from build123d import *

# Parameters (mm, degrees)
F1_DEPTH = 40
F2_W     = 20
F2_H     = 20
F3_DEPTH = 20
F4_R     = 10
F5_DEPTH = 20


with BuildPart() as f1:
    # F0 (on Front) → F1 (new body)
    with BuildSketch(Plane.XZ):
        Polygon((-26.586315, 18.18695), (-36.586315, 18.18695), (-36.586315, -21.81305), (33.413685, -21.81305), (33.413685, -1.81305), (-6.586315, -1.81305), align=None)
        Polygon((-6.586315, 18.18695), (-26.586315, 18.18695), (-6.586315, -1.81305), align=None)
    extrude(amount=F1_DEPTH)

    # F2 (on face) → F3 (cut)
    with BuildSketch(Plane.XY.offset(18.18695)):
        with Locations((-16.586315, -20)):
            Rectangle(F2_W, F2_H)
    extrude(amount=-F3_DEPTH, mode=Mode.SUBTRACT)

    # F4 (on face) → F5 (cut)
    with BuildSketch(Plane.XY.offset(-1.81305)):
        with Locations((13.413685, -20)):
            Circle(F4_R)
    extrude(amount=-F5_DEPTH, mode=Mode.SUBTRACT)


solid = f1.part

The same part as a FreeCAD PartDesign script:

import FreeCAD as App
import Part
import Sketcher
Q = App.Units.Quantity


def add_polygon(sketch, points):
    """Adds a closed chain of lines whose ends are joined by coincident constraints."""
    first, n = sketch.GeometryCount, len(points)
    for a, b in zip(points, points[1:] + points[:1]):
        sketch.addGeometry(Part.LineSegment(App.Vector(*a, 0), App.Vector(*b, 0)), False)
    for i in range(n):
        sketch.addConstraint(Sketcher.Constraint("Coincident", first + i, 2, first + (i + 1) % n, 1))

doc = App.newDocument("Part")
body = doc.addObject("PartDesign::Body", "Body")

sketch1 = doc.addObject("Sketcher::SketchObject", "Sketch")
body.addObject(sketch1)
sketch1.AttachmentSupport = (doc.XZ_Plane, [""])
sketch1.MapMode = "FlatFace"
add_polygon(sketch1, [(-36.586315, 18.18695), (-36.586315, -21.81305), (33.413685, -21.81305), (33.413685, -1.81305), (-6.586315, -1.81305), (-6.586315, 18.18695)])
sketch1.addConstraint(Sketcher.Constraint("Vertical", 0))
sketch1.addConstraint(Sketcher.Constraint("Horizontal", 1))
sketch1.addConstraint(Sketcher.Constraint("Vertical", 2))
sketch1.addConstraint(Sketcher.Constraint("Horizontal", 3))
sketch1.addConstraint(Sketcher.Constraint("Vertical", 4))
sketch1.addConstraint(Sketcher.Constraint("Horizontal", 5))
sketch1.addConstraint(Sketcher.Constraint("Equal", 3, 0))
sketch1.addConstraint(Sketcher.Constraint("Equal", 2, 4))
sketch1.addConstraint(Sketcher.Constraint("DistanceX", 1, 1, 1, 2, Q("70 mm")))
sketch1.addConstraint(Sketcher.Constraint("DistanceX", 3, 2, 3, 1, Q("40 mm")))
sketch1.addConstraint(Sketcher.Constraint("DistanceY", 0, 2, -1, 1, Q("21.81305 mm")))
sketch1.addConstraint(Sketcher.Constraint("DistanceX", 0, 2, -1, 1, Q("36.586315 mm")))
pad1 = doc.addObject("PartDesign::Pad", "Pad")
body.addObject(pad1)
pad1.Profile = sketch1
pad1.Length = 40

sketch2 = doc.addObject("Sketcher::SketchObject", "Sketch001")
body.addObject(sketch2)
sketch2.AttachmentSupport = (doc.XY_Plane, [""])
sketch2.MapMode = "FlatFace"
sketch2.AttachmentOffset = App.Placement(App.Vector(0, 0, 18.18695), App.Rotation())
add_polygon(sketch2, [(-26.586315, -10), (-26.586315, -30), (-6.586315, -30), (-6.586315, -10)])
sketch2.addConstraint(Sketcher.Constraint("Vertical", 0))
sketch2.addConstraint(Sketcher.Constraint("Horizontal", 1))
sketch2.addConstraint(Sketcher.Constraint("Vertical", 2))
sketch2.addConstraint(Sketcher.Constraint("Horizontal", 3))
sketch2.addConstraint(Sketcher.Constraint("Equal", 3, 0))
sketch2.addConstraint(Sketcher.Constraint("DistanceX", 1, 1, 1, 2, Q("20 mm")))
sketch2.addConstraint(Sketcher.Constraint("DistanceY", 0, 2, -1, 1, Q("30 mm")))
sketch2.addConstraint(Sketcher.Constraint("DistanceX", 0, 2, -1, 1, Q("26.586315 mm")))
pocket1 = doc.addObject("PartDesign::Pocket", "Pocket")
body.addObject(pocket1)
pocket1.Profile = sketch2
pocket1.Length = 20

sketch3 = doc.addObject("Sketcher::SketchObject", "Sketch002")
body.addObject(sketch3)
sketch3.AttachmentSupport = (doc.XY_Plane, [""])
sketch3.MapMode = "FlatFace"
sketch3.AttachmentOffset = App.Placement(App.Vector(0, 0, -1.81305), App.Rotation())
sketch3.addGeometry(Part.Circle(App.Vector(13.413685, -20, 0), App.Vector(0, 0, 1), 10), False)
sketch3.addConstraint(Sketcher.Constraint("Diameter", 0, Q("20 mm")))
sketch3.addConstraint(Sketcher.Constraint("DistanceY", 0, 3, -1, 1, Q("20 mm")))
sketch3.addConstraint(Sketcher.Constraint("DistanceX", -1, 1, 0, 3, Q("13.413685 mm")))
pocket2 = doc.addObject("PartDesign::Pocket", "Pocket001")
body.addObject(pocket2)
pocket2.Profile = sketch3
pocket2.Length = 20

doc.recompute()
